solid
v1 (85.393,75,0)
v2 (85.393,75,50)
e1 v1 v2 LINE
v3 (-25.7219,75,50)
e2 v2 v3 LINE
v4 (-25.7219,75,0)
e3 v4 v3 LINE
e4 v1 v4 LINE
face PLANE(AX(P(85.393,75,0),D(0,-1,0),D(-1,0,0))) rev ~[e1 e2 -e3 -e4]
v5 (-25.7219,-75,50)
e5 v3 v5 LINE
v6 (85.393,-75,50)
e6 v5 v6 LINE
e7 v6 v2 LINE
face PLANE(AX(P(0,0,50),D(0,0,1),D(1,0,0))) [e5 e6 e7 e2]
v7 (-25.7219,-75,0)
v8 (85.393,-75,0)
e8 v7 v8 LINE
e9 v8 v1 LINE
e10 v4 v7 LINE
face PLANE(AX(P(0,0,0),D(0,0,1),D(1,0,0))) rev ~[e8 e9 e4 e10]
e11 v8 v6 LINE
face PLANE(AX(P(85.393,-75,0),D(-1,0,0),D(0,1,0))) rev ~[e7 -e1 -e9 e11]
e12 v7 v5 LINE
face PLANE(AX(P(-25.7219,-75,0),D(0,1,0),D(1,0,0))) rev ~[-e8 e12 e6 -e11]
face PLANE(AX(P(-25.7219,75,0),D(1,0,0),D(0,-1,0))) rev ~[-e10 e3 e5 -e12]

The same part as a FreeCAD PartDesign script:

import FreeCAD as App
import Part
import Sketcher

doc = App.newDocument("Part")
body = doc.addObject("PartDesign::Body", "Body")

# Sketch on XY plane
sketch1 = body.newObject("Sketcher::SketchObject", "Sketch")
sketch1.AttachmentSupport = (doc.getObject("XY_Plane"), [""])
sketch1.MapMode = "FlatFace"
sketch1.addGeometry([
    Part.LineSegment(App.Vector(-26, -75, 0), App.Vector(85, -75, 0)),
    Part.LineSegment(App.Vector(85, -75, 0), App.Vector(85, 75, 0)),
    Part.LineSegment(App.Vector(85, 75, 0), App.Vector(-26, 75, 0)),
    Part.LineSegment(App.Vector(-26, 75, 0), App.Vector(-26, -75, 0)),
], False)
sketch1.addConstraint([
    Sketcher.Constraint("Coincident", 0, 2, 1, 1),
    Sketcher.Constraint("Coincident", 1, 2, 2, 1),
    Sketcher.Constraint("Coincident", 2, 2, 3, 1),
    Sketcher.Constraint("Coincident", 3, 2, 0, 1),
    Sketcher.Constraint("Horizontal", 0),
    Sketcher.Constraint("Vertical", 1),
    Sketcher.Constraint("Horizontal", 2),
    Sketcher.Constraint("Vertical", 3),
    Sketcher.Constraint("DistanceY", 1, 1, 1, 2, 150.0),
    Sketcher.Constraint("DistanceY", 0, 2, -1, 1, 75.0),
    Sketcher.Constraint("DistanceX", 0, 1, 0, 2, 111.115),
    Sketcher.Constraint("DistanceX", -1, 1, 0, 2, 85.393),
])
pad1 = body.newObject("PartDesign::Pad", "Pad")
pad1.Profile = sketch1
pad1.Length = 50

doc.recompute()
